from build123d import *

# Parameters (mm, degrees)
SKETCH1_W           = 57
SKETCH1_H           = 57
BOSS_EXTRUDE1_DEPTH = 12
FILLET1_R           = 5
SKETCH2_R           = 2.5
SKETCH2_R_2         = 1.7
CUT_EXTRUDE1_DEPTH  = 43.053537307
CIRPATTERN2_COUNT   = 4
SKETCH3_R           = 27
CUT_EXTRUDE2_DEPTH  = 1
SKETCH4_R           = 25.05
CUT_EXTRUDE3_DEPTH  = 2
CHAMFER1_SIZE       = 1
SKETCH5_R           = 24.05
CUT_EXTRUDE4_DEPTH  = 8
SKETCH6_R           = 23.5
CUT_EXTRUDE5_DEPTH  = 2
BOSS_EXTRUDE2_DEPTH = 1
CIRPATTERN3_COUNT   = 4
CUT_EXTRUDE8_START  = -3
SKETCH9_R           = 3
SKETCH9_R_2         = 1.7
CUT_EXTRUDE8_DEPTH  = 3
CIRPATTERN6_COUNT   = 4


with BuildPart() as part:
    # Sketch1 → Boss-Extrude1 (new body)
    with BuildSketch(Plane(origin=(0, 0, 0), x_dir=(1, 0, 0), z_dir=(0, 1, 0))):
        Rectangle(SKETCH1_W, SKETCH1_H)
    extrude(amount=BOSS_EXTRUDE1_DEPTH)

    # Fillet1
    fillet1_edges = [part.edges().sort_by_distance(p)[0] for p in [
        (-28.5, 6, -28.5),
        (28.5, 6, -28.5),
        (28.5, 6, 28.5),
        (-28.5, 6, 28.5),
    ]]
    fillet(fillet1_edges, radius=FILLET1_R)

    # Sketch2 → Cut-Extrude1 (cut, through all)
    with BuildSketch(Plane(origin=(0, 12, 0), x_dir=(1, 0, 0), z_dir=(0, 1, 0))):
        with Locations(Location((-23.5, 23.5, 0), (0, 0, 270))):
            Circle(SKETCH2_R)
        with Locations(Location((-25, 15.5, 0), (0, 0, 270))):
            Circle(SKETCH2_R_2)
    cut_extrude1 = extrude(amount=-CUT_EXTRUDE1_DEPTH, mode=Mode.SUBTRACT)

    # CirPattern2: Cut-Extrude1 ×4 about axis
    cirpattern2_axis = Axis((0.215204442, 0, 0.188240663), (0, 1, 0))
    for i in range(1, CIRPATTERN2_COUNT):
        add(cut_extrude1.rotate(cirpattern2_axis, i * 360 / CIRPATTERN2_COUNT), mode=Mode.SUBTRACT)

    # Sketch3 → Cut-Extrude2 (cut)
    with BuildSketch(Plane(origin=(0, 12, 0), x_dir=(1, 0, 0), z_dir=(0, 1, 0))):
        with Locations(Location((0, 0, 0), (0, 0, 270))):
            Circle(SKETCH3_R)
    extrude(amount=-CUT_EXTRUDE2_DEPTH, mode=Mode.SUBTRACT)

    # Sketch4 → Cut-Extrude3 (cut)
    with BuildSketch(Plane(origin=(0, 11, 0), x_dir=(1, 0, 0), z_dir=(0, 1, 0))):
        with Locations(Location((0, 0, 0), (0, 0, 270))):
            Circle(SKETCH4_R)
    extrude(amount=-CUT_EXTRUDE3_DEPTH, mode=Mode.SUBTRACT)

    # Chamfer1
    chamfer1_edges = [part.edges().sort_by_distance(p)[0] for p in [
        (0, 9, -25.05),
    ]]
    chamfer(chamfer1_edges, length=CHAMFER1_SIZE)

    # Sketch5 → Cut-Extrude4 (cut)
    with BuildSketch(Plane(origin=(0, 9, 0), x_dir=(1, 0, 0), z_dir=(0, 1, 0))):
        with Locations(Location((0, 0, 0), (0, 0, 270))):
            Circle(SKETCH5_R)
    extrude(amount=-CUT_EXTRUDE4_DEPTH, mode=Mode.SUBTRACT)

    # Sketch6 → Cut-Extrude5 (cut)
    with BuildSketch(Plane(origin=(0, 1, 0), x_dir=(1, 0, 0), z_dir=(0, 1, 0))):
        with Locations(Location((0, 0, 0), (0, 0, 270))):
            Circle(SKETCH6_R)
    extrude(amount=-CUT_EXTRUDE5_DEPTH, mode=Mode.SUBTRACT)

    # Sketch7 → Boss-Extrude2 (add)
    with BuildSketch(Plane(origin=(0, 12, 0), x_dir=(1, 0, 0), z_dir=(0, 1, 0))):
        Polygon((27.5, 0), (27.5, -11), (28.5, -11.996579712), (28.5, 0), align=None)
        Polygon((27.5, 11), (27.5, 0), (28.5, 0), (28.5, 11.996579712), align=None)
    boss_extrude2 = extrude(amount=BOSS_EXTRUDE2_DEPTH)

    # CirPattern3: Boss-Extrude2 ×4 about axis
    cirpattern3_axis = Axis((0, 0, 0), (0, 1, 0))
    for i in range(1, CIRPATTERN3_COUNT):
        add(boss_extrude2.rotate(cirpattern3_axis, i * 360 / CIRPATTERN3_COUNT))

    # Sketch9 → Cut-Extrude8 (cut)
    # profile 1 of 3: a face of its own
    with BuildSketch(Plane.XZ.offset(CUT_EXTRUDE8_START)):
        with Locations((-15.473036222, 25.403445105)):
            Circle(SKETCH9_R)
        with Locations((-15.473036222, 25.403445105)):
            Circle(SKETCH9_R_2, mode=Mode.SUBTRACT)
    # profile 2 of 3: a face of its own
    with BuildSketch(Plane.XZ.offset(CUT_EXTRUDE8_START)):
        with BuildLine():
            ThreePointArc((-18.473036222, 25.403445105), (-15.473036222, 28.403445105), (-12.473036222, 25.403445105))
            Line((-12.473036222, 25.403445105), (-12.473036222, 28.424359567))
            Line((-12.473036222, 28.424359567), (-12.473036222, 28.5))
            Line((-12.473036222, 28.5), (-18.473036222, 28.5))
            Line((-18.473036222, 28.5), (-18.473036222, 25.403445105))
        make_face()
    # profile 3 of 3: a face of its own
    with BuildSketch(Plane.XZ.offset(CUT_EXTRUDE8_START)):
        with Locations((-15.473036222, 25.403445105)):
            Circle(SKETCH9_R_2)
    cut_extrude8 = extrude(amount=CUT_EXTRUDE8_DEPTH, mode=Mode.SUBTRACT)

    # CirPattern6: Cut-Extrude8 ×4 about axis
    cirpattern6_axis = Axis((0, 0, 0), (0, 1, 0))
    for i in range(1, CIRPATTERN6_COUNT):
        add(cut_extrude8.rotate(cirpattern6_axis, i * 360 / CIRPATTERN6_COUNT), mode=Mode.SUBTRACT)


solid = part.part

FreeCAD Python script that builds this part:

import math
import FreeCAD as App
import Part
import Sketcher

V = App.Vector
Q = App.Units.Quantity


def edges_at(feature, points):
    """Names of the edges that pass closest to the given points."""
    edges = feature.Shape.Edges
    near = lambda p: min(range(len(edges)), key=lambda i: edges[i].distToShape(Part.Vertex(*p))[0])
    return sorted({f"Edge{near(p) + 1}" for p in points})

doc = App.newDocument("Part")
body = doc.addObject("PartDesign::Body", "Body")

# Sketch on XZ plane
sketch1 = body.newObject("Sketcher::SketchObject", "Sketch")
sketch1.AttachmentSupport = (doc.getObject("XZ_Plane"), [""])
sketch1.MapMode = "FlatFace"
sketch1.addGeometry([
    Part.LineSegment(V(-28.5, -28.5, 0), V(-28.5, 28.5, 0)),
    Part.LineSegment(V(-28.5, 28.5, 0), V(28.5, 28.5, 0)),
    Part.LineSegment(V(28.5, 28.5, 0), V(28.5, -28.5, 0)),
    Part.LineSegment(V(28.5, -28.5, 0), V(-28.5, -28.5, 0)),
], False)
sketch1.addConstraint([
    Sketcher.Constraint("Coincident", 0, 2, 1, 1),
    Sketcher.Constraint("Coincident", 1, 2, 2, 1),
    Sketcher.Constraint("Coincident", 2, 2, 3, 1),
    Sketcher.Constraint("Coincident", 3, 2, 0, 1),
    Sketcher.Constraint("Vertical", 0),
    Sketcher.Constraint("Horizontal", 1),
    Sketcher.Constraint("Vertical", 2),
    Sketcher.Constraint("Horizontal", 3),
    Sketcher.Constraint("Symmetric", 0, 2, 2, 2, -1, 1),
    Sketcher.Constraint("Equal", 3, 0),
    Sketcher.Constraint("DistanceX", 1, 1, 1, 2, Q("57 mm")),
])
pad1 = body.newObject("PartDesign::Pad", "Pad")
pad1.Profile = sketch1
pad1.Length = 12
pad1.Reversed = True
doc.recompute()

fillet = body.newObject("PartDesign::Fillet", "Fillet")
fillet.Base = (pad1, edges_at(pad1, [
    (-28.5, 6, -28.5),
    (28.5, 6, -28.5),
    (28.5, 6, 28.5),
    (-28.5, 6, 28.5),
]))
fillet.Radius = 5

# Sketch on XZ plane
sketch2 = body.newObject("Sketcher::SketchObject", "Sketch001")
sketch2.AttachmentSupport = (doc.getObject("XZ_Plane"), [""])
sketch2.MapMode = "FlatFace"
sketch2.AttachmentOffset = App.Placement(V(0, 0, -12), App.Rotation())
sketch2.addGeometry([
    Part.Circle(V(-23.5, -23.5, 0), V(0, 0, 1), 2.5),
    Part.Circle(V(-25, -15.5, 0), V(0, 0, 1), 1.7),
], False)
sketch2.addConstraint([
    Sketcher.Constraint("Diameter", 0, Q("5 mm")),
    Sketcher.Constraint("Diameter", 1, Q("3.4 mm")),
    Sketcher.Constraint("DistanceX", 1, 3, -1, 1, Q("25 mm")),
    Sketcher.Constraint("DistanceY", 0, 3, 1, 3, Q("8 mm")),
    Sketcher.Constraint("DistanceX", 0, 3, -1, 1, Q("23.5 mm")),
    Sketcher.Constraint("DistanceY", 0, 3, -1, 1, Q("23.5 mm")),
])
pocket1 = body.newObject("PartDesign::Pocket", "Pocket")
pocket1.Profile = sketch2
pocket1.Type = "ThroughAll"
pocket1.Reversed = True
doc.recompute()

datumline = body.newObject("PartDesign::Line", "DatumLine")
datumline.Placement = App.Placement(V(0.215204, 0, 0.188241), App.Rotation(V(0, 0, 1), V(0, 1, 0)))
polarpattern = body.newObject("PartDesign::PolarPattern", "PolarPattern")
polarpattern.Originals = [pocket1]
polarpattern.Axis = (datumline, [""])
polarpattern.Angle = 360
polarpattern.Occurrences = 4
body.Tip = polarpattern

# Sketch on XZ plane
sketch3 = body.newObject("Sketcher::SketchObject", "Sketch002")
sketch3.AttachmentSupport = (doc.getObject("XZ_Plane"), [""])
sketch3.MapMode = "FlatFace"
sketch3.AttachmentOffset = App.Placement(V(0, 0, -12), App.Rotation())
sketch3.addGeometry(Part.Circle(V(0, 0, 0), V(0, 0, 1), 27), False)
sketch3.addConstraint([
    Sketcher.Constraint("Coincident", 0, 3, -1, 1),
    Sketcher.Constraint("Diameter", 0, Q("54 mm")),
])
pocket2 = body.newObject("PartDesign::Pocket", "Pocket001")
pocket2.Profile = sketch3
pocket2.Length = 1
pocket2.Reversed = True

# Sketch on XZ plane
sketch4 = body.newObject("Sketcher::SketchObject", "Sketch003")
sketch4.AttachmentSupport = (doc.getObject("XZ_Plane"), [""])
sketch4.MapMode = "FlatFace"
sketch4.AttachmentOffset = App.Placement(V(0, 0, -11), App.Rotation())
sketch4.addGeometry(Part.Circle(V(0, 0, 0), V(0, 0, 1), 25.05), False)
sketch4.addConstraint([
    Sketcher.Constraint("Coincident", 0, 3, -1, 1),
    Sketcher.Constraint("Diameter", 0, Q("50.1 mm")),
])
pocket3 = body.newObject("PartDesign::Pocket", "Pocket002")
pocket3.Profile = sketch4
pocket3.Length = 2
pocket3.Reversed = True
doc.recompute()

chamfer = body.newObject("PartDesign::Chamfer", "Chamfer")
chamfer.Base = (pocket3, edges_at(pocket3, [(0, 9, -25.05)]))
chamfer.Size = 1

# Sketch on XZ plane
sketch5 = body.newObject("Sketcher::SketchObject", "Sketch004")
sketch5.AttachmentSupport = (doc.getObject("XZ_Plane"), [""])
sketch5.MapMode = "FlatFace"
sketch5.AttachmentOffset = App.Placement(V(0, 0, -9), App.Rotation())
sketch5.addGeometry(Part.Circle(V(0, 0, 0), V(0, 0, 1), 24.05), False)
sketch5.addConstraint([
    Sketcher.Constraint("Coincident", 0, 3, -1, 1),
    Sketcher.Constraint("Diameter", 0, Q("48.1 mm")),
])
pocket4 = body.newObject("PartDesign::Pocket", "Pocket003")
pocket4.Profile = sketch5
pocket4.Length = 8
pocket4.Reversed = True

# Sketch on XZ plane
sketch6 = body.newObject("Sketcher::SketchObject", "Sketch005")
sketch6.AttachmentSupport = (doc.getObject("XZ_Plane"), [""])
sketch6.MapMode = "FlatFace"
sketch6.AttachmentOffset = App.Placement(V(0, 0, -1), App.Rotation())
sketch6.addGeometry(Part.Circle(V(0, 0, 0), V(0, 0, 1), 23.5), False)
sketch6.addConstraint([
    Sketcher.Constraint("Coincident", 0, 3, -1, 1),
    Sketcher.Constraint("Diameter", 0, Q("47 mm")),
])
pocket5 = body.newObject("PartDesign::Pocket", "Pocket004")
pocket5.Profile = sketch6
pocket5.Length = 2
pocket5.Reversed = True

# Sketch on XZ plane
sketch7 = body.newObject("Sketcher::SketchObject", "Sketch006")
sketch7.AttachmentSupport = (doc.getObject("XZ_Plane"), [""])
sketch7.MapMode = "FlatFace"
sketch7.AttachmentOffset = App.Placement(V(0, 0, -12), App.Rotation())
sketch7.addGeometry([
    Part.LineSegment(V(27.5, 11, 0), V(28.5, 11.99658, 0)),
    Part.LineSegment(V(28.5, 11.99658, 0), V(28.5, -11.99658, 0)),
    Part.LineSegment(V(28.5, -11.99658, 0), V(27.5, -11, 0)),
    Part.LineSegment(V(27.5, -11, 0), V(27.5, 11, 0)),
], False)
sketch7.addConstraint([
    Sketcher.Constraint("Coincident", 0, 2, 1, 1),
    Sketcher.Constraint("Coincident", 1, 2, 2, 1),
    Sketcher.Constraint("Coincident", 2, 2, 3, 1),
    Sketcher.Constraint("Coincident", 3, 2, 0, 1),
    Sketcher.Constraint("Vertical", 1),
    Sketcher.Constraint("Vertical", 3),
    Sketcher.Constraint("Equal", 0, 2),
    Sketcher.Constraint("DistanceY", 3, 1, 3, 2, Q("22 mm")),
    Sketcher.Constraint("DistanceY", 2, 2, -1, 1, Q("11 mm")),
    Sketcher.Constraint("DistanceX", 2, 2, 1, 2, Q("1 mm")),
    Sketcher.Constraint("DistanceX", -1, 1, 0, 2, Q("28.5 mm")),
    Sketcher.Constraint("DistanceY", 1, 2, 1, 1, Q("23.993159 mm")),
])
pad2 = body.newObject("PartDesign::Pad", "Pad001")
pad2.Profile = sketch7
pad2.Length = 1
pad2.Reversed = True
doc.recompute()

polarpattern2 = body.newObject("PartDesign::PolarPattern", "PolarPattern001")
polarpattern2.Originals = [pad2]
polarpattern2.Axis = (doc.getObject("Y_Axis"), [""])
polarpattern2.Angle = 360
polarpattern2.Occurrences = 4
body.Tip = polarpattern2

# Sketch on XZ plane
sketch8 = body.newObject("Sketcher::SketchObject", "Sketch007")
sketch8.AttachmentSupport = (doc.getObject("XZ_Plane"), [""])
sketch8.MapMode = "FlatFace"
sketch8.AttachmentOffset = App.Placement(V(0, 0, -3), App.Rotation())
sketch8.addGeometry([
    Part.ArcOfCircle(Part.Circle(V(-15.473036, 25.403445, 0), V(0, 0, 1), 3), math.radians(180), math.radians(360)),
    Part.LineSegment(V(-12.473036, 25.403445, 0), V(-12.473036, 28.5, 0)),
    Part.LineSegment(V(-12.473036, 28.5, 0), V(-18.473036, 28.5, 0)),
    Part.LineSegment(V(-18.473036, 28.5, 0), V(-18.473036, 25.403445, 0)),
], False)
sketch8.addConstraint([
    Sketcher.Constraint("Tangent", 0, 2, 1, 1),
    Sketcher.Constraint("Coincident", 1, 2, 2, 1),
    Sketcher.Constraint("Coincident", 2, 2, 3, 1),
    Sketcher.Constraint("Tangent", 3, 2, 0, 1),
    Sketcher.Constraint("Vertical", 1),
    Sketcher.Constraint("Horizontal", 2),
    Sketcher.Constraint("Vertical", 3),
    Sketcher.Constraint("Radius", 0, Q("3 mm")),
    Sketcher.Constraint("DistanceY", -1, 1, 1, 2, Q("28.5 mm")),
    Sketcher.Constraint("DistanceY", 1, 1, 1, 2, Q("3.096555 mm")),
    Sketcher.Constraint("DistanceX", 0, 3, -1, 1, Q("15.473036 mm")),
])
pocket6 = body.newObject("PartDesign::Pocket", "Pocket005")
pocket6.Profile = sketch8
pocket6.Length = 3
pocket6.Reversed = True
doc.recompute()

polarpattern3 = body.newObject("PartDesign::PolarPattern", "PolarPattern002")
polarpattern3.Originals = [pocket6]
polarpattern3.Axis = (doc.getObject("Y_Axis"), [""])
polarpattern3.Angle = 360
polarpattern3.Occurrences = 4
body.Tip = polarpattern3

doc.recompute()
